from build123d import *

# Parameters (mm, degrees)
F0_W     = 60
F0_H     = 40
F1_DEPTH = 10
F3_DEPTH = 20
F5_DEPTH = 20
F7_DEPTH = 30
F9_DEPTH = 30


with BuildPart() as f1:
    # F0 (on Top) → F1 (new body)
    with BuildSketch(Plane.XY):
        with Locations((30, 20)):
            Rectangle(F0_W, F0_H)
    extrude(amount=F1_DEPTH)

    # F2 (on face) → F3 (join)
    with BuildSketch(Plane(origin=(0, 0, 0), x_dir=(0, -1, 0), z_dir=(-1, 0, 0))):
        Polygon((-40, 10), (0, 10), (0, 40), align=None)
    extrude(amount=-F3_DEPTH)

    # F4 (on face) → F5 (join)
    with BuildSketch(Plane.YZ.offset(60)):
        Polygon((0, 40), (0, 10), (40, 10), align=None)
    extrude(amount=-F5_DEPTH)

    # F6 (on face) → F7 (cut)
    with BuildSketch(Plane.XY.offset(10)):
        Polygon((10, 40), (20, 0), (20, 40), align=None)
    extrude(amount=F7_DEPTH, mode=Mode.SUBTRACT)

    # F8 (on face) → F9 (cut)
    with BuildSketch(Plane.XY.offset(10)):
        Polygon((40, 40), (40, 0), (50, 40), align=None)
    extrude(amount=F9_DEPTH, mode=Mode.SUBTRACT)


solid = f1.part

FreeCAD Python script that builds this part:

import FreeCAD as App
import Part
import Sketcher
Q = App.Units.Quantity

doc = App.newDocument("Part")
body = doc.addObject("PartDesign::Body", "Body")

# Sketch on XY plane
sketch1 = body.newObject("Sketcher::SketchObject", "Sketch")
sketch1.AttachmentSupport = (doc.getObject("XY_Plane"), [""])
sketch1.MapMode = "FlatFace"
sketch1.addGeometry(Part.LineSegment(App.Vector(0, 40, 0), App.Vector(0, 0, 0)), False)
sketch1.addGeometry(Part.LineSegment(App.Vector(0, 0, 0), App.Vector(60, 0, 0)), False)
sketch1.addGeometry(Part.LineSegment(App.Vector(60, 0, 0), App.Vector(60, 40, 0)), False)
sketch1.addGeometry(Part.LineSegment(App.Vector(60, 40, 0), App.Vector(0, 40, 0)), False)
sketch1.addConstraint(Sketcher.Constraint("Coincident", 0, 2, 1, 1))
sketch1.addConstraint(Sketcher.Constraint("Coincident", 1, 2, 2, 1))
sketch1.addConstraint(Sketcher.Constraint("Coincident", 2, 2, 3, 1))
sketch1.addConstraint(Sketcher.Constraint("Coincident", 3, 2, 0, 1))
sketch1.addConstraint(Sketcher.Constraint("Vertical", 0))
sketch1.addConstraint(Sketcher.Constraint("Horizontal", 1))
sketch1.addConstraint(Sketcher.Constraint("Vertical", 2))
sketch1.addConstraint(Sketcher.Constraint("Horizontal", 3))
sketch1.addConstraint(Sketcher.Constraint("Coincident", 0, 2, -1, 1))
sketch1.addConstraint(Sketcher.Constraint("DistanceX", 1, 1, 1, 2, Q("60 mm")))
sketch1.addConstraint(Sketcher.Constraint("DistanceY", 0, 2, 0, 1, Q("40 mm")))
pad1 = body.newObject("PartDesign::Pad", "Pad")
pad1.Profile = sketch1
pad1.Length = 10

# Sketch on YZ plane
sketch2 = body.newObject("Sketcher::SketchObject", "Sketch001")
sketch2.AttachmentSupport = (doc.getObject("YZ_Plane"), [""])
sketch2.MapMode = "FlatFace"
sketch2.addGeometry(Part.LineSegment(App.Vector(40, 10, 0), App.Vector(0, 10, 0)), False)
sketch2.addGeometry(Part.LineSegment(App.Vector(0, 10, 0), App.Vector(0, 40, 0)), False)
sketch2.addGeometry(Part.LineSegment(App.Vector(0, 40, 0), App.Vector(40, 10, 0)), False)
sketch2.addConstraint(Sketcher.Constraint("Coincident", 0, 2, 1, 1))
sketch2.addConstraint(Sketcher.Constraint("Coincident", 1, 2, 2, 1))
sketch2.addConstraint(Sketcher.Constraint("Coincident", 2, 2, 0, 1))
sketch2.addConstraint(Sketcher.Constraint("Horizontal", 0))
sketch2.addConstraint(Sketcher.Constraint("Vertical", 1))
sketch2.addConstraint(Sketcher.Constraint("PointOnObject", 0, 2, -2))
sketch2.addConstraint(Sketcher.Constraint("DistanceX", 0, 2, 0, 1, Q("40 mm")))
sketch2.addConstraint(Sketcher.Constraint("DistanceY", 1, 1, 1, 2, Q("30 mm")))
sketch2.addConstraint(Sketcher.Constraint("DistanceY", -1, 1, 0, 2, Q("10 mm")))
pad2 = body.newObject("PartDesign::Pad", "Pad001")
pad2.Profile = sketch2
pad2.Length = 20

# Sketch on YZ plane
sketch3 = body.newObject("Sketcher::SketchObject", "Sketch002")
sketch3.AttachmentSupport = (doc.getObject("YZ_Plane"), [""])
sketch3.MapMode = "FlatFace"
sketch3.AttachmentOffset = App.Placement(App.Vector(0, 0, 60), App.Rotation())
sketch3.addGeometry(Part.LineSegment(App.Vector(0, 40, 0), App.Vector(0, 10, 0)), False)
sketch3.addGeometry(Part.LineSegment(App.Vector(0, 10, 0), App.Vector(40, 10, 0)), False)
sketch3.addGeometry(Part.LineSegment(App.Vector(40, 10, 0), App.Vector(0, 40, 0)), False)
sketch3.addConstraint(Sketcher.Constraint("Coincident", 0, 2, 1, 1))
sketch3.addConstraint(Sketcher.Constraint("Coincident", 1, 2, 2, 1))
sketch3.addConstraint(Sketcher.Constraint("Coincident", 2, 2, 0, 1))
sketch3.addConstraint(Sketcher.Constraint("Vertical", 0))
sketch3.addConstraint(Sketcher.Constraint("Horizontal", 1))
sketch3.addConstraint(Sketcher.Constraint("PointOnObject", 0, 2, -2))
sketch3.addConstraint(Sketcher.Constraint("DistanceX", 1, 1, 1, 2, Q("40 mm")))
sketch3.addConstraint(Sketcher.Constraint("DistanceY", 0, 2, 0, 1, Q("30 mm")))
sketch3.addConstraint(Sketcher.Constraint("DistanceY", -1, 1, 0, 2, Q("10 mm")))
pad3 = body.newObject("PartDesign::Pad", "Pad002")
pad3.Profile = sketch3
pad3.Length = 20
pad3.Reversed = True

# Sketch on XY plane
sketch4 = body.newObject("Sketcher::SketchObject", "Sketch003")
sketch4.AttachmentSupport = (doc.getObject("XY_Plane"), [""])
sketch4.MapMode = "FlatFace"
sketch4.AttachmentOffset = App.Placement(App.Vector(0, 0, 10), App.Rotation())
sketch4.addGeometry(Part.LineSegment(App.Vector(10, 40, 0), App.Vector(20, 0, 0)), False)
sketch4.addGeometry(Part.LineSegment(App.Vector(20, 0, 0), App.Vector(20, 40, 0)), False)
sketch4.addGeometry(Part.LineSegment(App.Vector(20, 40, 0), App.Vector(10, 40, 0)), False)
sketch4.addConstraint(Sketcher.Constraint("Coincident", 0, 2, 1, 1))
sketch4.addConstraint(Sketcher.Constraint("Coincident", 1, 2, 2, 1))
sketch4.addConstraint(Sketcher.Constraint("Coincident", 2, 2, 0, 1))
sketch4.addConstraint(Sketcher.Constraint("Vertical", 1))
sketch4.addConstraint(Sketcher.Constraint("Horizontal", 2))
sketch4.addConstraint(Sketcher.Constraint("PointOnObject", 0, 2, -1))
sketch4.addConstraint(Sketcher.Constraint("DistanceX", 2, 2, 2, 1, Q("10 mm")))
sketch4.addConstraint(Sketcher.Constraint("DistanceY", 1, 1, 1, 2, Q("40 mm")))
sketch4.addConstraint(Sketcher.Constraint("DistanceX", -1, 1, 0, 2, Q("20 mm")))
pocket1 = body.newObject("PartDesign::Pocket", "Pocket")
pocket1.Profile = sketch4
pocket1.Length = 30
pocket1.Reversed = True

# Sketch on XY plane
sketch5 = body.newObject("Sketcher::SketchObject", "Sketch004")
sketch5.AttachmentSupport = (doc.getObject("XY_Plane"), [""])
sketch5.MapMode = "FlatFace"
sketch5.AttachmentOffset = App.Placement(App.Vector(0, 0, 10), App.Rotation())
sketch5.addGeometry(Part.LineSegment(App.Vector(40, 40, 0), App.Vector(40, 0, 0)), False)
sketch5.addGeometry(Part.LineSegment(App.Vector(40, 0, 0), App.Vector(50, 40, 0)), False)
sketch5.addGeometry(Part.LineSegment(App.Vector(50, 40, 0), App.Vector(40, 40, 0)), False)
sketch5.addConstraint(Sketcher.Constraint("Coincident", 0, 2, 1, 1))
sketch5.addConstraint(Sketcher.Constraint("Coincident", 1, 2, 2, 1))
sketch5.addConstraint(Sketcher.Constraint("Coincident", 2, 2, 0, 1))
sketch5.addConstraint(Sketcher.Constraint("Vertical", 0))
sketch5.addConstraint(Sketcher.Constraint("Horizontal", 2))
sketch5.addConstraint(Sketcher.Constraint("PointOnObject", 0, 2, -1))
sketch5.addConstraint(Sketcher.Constraint("DistanceX", 2, 2, 2, 1, Q("10 mm")))
sketch5.addConstraint(Sketcher.Constraint("DistanceY", 0, 2, 0, 1, Q("40 mm")))
sketch5.addConstraint(Sketcher.Constraint("DistanceX", -1, 1, 0, 2, Q("40 mm")))
pocket2 = body.newObject("PartDesign::Pocket", "Pocket001")
pocket2.Profile = sketch5
pocket2.Length = 30
pocket2.Reversed = True

doc.recompute()
